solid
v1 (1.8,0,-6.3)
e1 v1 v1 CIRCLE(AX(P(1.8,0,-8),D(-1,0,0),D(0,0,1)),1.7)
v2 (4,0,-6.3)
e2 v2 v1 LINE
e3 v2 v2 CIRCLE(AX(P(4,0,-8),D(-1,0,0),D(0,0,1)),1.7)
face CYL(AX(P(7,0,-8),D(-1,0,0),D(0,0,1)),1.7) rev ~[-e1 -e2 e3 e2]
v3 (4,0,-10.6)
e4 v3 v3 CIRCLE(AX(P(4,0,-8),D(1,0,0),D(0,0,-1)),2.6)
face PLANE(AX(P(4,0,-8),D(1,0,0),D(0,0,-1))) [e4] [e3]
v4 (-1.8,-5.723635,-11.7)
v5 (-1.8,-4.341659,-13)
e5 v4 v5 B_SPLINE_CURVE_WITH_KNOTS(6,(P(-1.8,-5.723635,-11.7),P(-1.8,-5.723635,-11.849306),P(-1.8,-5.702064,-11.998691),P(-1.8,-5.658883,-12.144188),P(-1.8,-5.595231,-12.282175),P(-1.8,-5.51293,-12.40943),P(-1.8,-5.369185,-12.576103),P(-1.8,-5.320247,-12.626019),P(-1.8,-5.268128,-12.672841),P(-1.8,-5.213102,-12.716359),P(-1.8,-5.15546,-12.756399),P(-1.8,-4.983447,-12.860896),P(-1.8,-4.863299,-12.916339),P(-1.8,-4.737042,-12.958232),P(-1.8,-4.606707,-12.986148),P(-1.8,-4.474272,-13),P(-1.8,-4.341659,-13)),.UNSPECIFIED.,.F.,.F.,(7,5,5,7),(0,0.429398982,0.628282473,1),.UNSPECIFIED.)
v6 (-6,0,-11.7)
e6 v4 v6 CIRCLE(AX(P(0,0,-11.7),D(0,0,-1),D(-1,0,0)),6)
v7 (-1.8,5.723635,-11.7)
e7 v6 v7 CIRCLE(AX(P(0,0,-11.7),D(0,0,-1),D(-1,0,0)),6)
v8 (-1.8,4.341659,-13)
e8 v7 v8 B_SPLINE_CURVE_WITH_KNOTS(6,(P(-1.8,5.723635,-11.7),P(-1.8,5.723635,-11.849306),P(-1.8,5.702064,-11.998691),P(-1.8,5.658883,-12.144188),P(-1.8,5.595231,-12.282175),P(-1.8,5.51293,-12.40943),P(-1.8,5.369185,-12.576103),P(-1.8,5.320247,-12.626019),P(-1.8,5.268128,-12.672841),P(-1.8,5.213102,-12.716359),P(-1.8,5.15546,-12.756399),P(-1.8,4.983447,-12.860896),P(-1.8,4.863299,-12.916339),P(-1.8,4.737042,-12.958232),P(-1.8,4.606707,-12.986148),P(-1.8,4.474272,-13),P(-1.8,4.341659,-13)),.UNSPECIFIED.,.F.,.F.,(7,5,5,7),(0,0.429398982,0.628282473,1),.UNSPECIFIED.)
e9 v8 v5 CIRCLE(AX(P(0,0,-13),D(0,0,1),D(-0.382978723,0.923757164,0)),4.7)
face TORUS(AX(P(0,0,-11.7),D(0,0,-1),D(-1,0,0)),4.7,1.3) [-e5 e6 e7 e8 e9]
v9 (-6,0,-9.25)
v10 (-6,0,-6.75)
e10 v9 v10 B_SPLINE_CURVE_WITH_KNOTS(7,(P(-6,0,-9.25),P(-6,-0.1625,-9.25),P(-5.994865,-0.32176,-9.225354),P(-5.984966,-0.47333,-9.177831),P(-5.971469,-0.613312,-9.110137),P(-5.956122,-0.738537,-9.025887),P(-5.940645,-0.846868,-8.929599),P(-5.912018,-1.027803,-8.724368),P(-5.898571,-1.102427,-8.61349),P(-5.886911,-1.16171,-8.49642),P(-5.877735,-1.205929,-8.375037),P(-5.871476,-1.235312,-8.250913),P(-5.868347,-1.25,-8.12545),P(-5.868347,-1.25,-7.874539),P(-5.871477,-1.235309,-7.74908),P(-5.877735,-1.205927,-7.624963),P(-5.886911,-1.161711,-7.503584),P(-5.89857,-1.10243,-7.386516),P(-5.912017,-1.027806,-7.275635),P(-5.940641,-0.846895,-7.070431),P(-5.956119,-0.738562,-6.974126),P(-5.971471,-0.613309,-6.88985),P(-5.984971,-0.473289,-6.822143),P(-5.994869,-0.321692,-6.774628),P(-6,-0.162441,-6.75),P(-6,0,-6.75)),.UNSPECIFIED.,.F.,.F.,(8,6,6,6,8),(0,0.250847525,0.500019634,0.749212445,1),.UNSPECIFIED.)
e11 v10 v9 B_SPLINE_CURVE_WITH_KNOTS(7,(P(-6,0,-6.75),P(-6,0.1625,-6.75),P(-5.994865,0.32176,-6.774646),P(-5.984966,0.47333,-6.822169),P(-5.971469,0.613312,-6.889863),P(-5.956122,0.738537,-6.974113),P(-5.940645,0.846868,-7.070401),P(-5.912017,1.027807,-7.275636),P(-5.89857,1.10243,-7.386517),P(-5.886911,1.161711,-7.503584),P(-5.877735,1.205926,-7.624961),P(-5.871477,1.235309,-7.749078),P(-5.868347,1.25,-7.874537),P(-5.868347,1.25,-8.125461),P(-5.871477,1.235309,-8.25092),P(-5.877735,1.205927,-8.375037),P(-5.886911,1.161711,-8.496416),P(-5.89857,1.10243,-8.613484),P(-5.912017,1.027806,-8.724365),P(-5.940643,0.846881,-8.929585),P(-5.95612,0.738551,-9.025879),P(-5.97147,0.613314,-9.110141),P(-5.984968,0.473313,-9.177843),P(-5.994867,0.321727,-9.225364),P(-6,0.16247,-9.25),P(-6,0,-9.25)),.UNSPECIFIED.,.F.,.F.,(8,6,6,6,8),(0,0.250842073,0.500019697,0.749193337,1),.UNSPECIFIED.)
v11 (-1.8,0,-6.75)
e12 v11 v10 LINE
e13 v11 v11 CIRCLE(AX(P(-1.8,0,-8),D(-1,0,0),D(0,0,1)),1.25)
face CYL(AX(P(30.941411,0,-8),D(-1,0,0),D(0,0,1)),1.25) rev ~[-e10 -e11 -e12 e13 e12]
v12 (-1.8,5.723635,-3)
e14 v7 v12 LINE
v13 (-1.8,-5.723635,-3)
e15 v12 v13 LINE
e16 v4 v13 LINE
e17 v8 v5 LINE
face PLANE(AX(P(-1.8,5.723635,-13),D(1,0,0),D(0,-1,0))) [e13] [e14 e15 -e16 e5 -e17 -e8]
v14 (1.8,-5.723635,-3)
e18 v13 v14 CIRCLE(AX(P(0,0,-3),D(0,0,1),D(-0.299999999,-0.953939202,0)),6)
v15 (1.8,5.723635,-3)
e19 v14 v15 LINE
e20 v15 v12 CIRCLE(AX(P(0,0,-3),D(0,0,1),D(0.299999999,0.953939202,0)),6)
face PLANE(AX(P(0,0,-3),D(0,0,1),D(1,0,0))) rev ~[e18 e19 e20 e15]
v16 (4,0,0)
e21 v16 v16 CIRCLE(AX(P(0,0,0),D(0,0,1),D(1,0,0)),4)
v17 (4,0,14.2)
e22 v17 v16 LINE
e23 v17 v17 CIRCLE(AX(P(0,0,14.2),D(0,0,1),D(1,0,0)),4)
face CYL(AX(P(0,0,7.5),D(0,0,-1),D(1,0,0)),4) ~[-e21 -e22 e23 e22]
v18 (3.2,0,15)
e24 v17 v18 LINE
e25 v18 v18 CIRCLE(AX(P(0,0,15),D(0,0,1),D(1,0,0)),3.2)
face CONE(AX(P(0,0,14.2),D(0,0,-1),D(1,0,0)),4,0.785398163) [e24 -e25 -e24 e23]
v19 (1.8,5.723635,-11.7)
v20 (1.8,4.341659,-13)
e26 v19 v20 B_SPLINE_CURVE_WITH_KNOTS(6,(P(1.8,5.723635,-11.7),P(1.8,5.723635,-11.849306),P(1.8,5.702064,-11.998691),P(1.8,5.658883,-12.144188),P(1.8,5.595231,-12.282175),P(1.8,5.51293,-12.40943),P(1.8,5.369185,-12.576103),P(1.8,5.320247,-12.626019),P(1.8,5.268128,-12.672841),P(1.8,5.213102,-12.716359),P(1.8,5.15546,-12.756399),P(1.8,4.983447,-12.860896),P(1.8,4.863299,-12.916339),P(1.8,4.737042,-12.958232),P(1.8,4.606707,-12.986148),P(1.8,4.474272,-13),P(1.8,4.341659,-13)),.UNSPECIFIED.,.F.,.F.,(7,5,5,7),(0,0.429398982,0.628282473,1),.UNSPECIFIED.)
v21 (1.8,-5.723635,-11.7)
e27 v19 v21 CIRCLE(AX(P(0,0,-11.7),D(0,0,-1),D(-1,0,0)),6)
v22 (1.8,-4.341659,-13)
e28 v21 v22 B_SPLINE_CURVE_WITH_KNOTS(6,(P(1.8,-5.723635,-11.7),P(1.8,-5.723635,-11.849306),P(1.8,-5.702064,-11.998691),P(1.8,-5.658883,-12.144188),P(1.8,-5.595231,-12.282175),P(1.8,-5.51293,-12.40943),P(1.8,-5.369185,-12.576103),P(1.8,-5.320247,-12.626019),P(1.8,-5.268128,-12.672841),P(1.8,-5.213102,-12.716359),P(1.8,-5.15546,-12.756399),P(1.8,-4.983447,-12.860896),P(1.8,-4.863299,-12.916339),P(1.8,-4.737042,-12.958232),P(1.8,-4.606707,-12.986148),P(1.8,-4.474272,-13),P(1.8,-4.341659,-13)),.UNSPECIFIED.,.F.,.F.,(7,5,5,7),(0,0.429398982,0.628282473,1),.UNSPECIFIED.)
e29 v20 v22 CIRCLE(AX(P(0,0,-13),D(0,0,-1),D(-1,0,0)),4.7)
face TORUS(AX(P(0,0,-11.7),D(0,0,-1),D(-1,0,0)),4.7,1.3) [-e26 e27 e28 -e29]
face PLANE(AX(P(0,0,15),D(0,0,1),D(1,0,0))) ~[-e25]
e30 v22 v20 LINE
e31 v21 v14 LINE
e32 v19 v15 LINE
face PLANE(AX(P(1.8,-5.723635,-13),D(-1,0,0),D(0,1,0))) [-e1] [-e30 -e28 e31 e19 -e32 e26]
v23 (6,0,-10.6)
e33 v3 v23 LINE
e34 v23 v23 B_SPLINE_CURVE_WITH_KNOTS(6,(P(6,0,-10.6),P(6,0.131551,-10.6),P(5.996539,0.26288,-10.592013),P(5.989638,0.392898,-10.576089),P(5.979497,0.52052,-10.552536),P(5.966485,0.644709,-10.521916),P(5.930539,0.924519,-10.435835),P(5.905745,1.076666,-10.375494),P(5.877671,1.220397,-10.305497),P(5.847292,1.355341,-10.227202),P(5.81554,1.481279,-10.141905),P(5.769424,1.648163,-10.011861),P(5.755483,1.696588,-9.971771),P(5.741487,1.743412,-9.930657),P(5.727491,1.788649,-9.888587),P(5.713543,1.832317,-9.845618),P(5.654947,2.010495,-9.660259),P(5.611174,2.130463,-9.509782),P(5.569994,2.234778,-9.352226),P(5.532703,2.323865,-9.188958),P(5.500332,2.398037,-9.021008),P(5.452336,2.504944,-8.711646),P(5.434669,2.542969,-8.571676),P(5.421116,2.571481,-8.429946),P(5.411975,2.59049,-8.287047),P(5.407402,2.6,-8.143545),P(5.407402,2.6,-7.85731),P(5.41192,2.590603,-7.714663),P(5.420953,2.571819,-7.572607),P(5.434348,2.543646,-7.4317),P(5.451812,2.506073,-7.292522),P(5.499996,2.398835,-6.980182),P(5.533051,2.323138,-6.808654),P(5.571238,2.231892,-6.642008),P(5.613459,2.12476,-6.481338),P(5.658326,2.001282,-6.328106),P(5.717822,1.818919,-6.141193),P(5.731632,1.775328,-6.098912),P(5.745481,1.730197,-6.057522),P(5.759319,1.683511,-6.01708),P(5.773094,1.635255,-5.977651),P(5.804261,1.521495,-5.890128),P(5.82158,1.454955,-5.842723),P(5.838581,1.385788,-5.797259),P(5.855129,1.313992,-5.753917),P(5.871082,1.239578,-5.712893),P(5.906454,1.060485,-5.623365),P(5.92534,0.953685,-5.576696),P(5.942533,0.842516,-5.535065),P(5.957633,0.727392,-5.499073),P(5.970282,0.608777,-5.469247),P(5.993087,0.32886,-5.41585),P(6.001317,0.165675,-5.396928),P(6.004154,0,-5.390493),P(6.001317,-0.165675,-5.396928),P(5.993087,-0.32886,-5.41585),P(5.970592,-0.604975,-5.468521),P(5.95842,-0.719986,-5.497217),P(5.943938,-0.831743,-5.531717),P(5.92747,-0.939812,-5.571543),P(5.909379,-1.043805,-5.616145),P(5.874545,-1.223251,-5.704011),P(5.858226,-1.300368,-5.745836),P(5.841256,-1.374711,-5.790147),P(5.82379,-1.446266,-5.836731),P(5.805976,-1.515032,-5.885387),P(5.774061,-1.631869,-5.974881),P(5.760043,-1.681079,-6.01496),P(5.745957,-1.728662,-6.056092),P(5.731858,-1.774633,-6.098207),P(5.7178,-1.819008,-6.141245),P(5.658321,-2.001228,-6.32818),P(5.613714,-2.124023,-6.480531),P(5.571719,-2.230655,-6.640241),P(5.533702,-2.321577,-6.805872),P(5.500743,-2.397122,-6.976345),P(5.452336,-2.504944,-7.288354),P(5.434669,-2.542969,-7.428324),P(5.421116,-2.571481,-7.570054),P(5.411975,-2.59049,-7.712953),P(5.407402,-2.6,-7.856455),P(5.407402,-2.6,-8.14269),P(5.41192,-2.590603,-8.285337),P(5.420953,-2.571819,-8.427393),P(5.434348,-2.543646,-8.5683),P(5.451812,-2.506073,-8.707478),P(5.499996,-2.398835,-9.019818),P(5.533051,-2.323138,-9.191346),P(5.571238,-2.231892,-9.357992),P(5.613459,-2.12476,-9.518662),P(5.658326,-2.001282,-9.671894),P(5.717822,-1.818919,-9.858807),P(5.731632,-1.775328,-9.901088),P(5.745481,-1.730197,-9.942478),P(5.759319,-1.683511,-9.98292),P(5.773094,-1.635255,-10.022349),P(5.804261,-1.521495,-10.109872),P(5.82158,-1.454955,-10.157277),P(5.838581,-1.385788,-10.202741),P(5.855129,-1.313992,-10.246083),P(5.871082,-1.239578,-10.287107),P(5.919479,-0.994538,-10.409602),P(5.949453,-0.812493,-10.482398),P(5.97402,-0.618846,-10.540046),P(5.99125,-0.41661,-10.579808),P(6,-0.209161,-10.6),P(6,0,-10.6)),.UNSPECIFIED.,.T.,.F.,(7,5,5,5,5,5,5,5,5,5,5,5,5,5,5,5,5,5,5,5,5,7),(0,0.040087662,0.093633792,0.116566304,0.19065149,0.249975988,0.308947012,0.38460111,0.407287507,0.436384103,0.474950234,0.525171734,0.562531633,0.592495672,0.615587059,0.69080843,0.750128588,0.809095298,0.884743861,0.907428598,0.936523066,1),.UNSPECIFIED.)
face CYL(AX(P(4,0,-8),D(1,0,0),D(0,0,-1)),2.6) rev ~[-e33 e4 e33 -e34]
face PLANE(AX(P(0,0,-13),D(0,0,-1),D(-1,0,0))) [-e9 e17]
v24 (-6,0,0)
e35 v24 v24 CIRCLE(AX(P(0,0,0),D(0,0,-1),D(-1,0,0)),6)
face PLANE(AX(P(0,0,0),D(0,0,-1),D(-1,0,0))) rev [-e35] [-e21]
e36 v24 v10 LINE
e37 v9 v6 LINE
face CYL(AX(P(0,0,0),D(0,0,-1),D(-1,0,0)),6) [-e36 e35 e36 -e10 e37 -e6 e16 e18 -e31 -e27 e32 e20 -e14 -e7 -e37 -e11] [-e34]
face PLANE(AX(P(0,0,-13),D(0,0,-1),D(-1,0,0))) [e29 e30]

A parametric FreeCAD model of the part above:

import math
import FreeCAD as App
import Part
import Sketcher
Q = App.Units.Quantity


def edges_at(feature, points):
    """Names of the edges that pass closest to the given points."""
    edges = feature.Shape.Edges
    near = lambda p: min(range(len(edges)), key=lambda i: edges[i].distToShape(Part.Vertex(*p))[0])
    return sorted({f"Edge{near(p) + 1}" for p in points})


def add_polygon(sketch, points):
    """Adds a closed chain of lines whose ends are joined by coincident constraints."""
    first, n = sketch.GeometryCount, len(points)
    for a, b in zip(points, points[1:] + points[:1]):
        sketch.addGeometry(Part.LineSegment(App.Vector(*a, 0), App.Vector(*b, 0)), False)
    for i in range(n):
        sketch.addConstraint(Sketcher.Constraint("Coincident", first + i, 2, first + (i + 1) % n, 1))

doc = App.newDocument("Part")
body = doc.addObject("PartDesign::Body", "Body")

sketch1 = body.newObject("Sketcher::SketchObject", "Sketch")
sketch1.AttachmentSupport = (doc.getObject("XZ_Plane"), [""])
sketch1.MapMode = "FlatFace"
sketch1.addGeometry([
    Part.LineSegment(App.Vector(0, 0, 0), App.Vector(6, 0, 0)),
    Part.LineSegment(App.Vector(6, 0, 0), App.Vector(6, -11.7, 0)),
    Part.ArcOfCircle(Part.Circle(App.Vector(4.7, -11.7, 0), App.Vector(0, 0, 1), 1.3), math.radians(-90), math.radians(0)),
    Part.LineSegment(App.Vector(4.7, -13, 0), App.Vector(0, -13, 0)),
    Part.LineSegment(App.Vector(0, -13, 0), App.Vector(0, 0, 0)),
], False)
sketch1.addConstraint([
    Sketcher.Constraint("Coincident", 0, 2, 1, 1),
    Sketcher.Constraint("Tangent", 1, 2, 2, 2),
    Sketcher.Constraint("Tangent", 2, 1, 3, 1),
    Sketcher.Constraint("Coincident", 3, 2, 4, 1),
    Sketcher.Constraint("Coincident", 4, 2, 0, 1),
    Sketcher.Constraint("Horizontal", 0),
    Sketcher.Constraint("Vertical", 1),
    Sketcher.Constraint("Horizontal", 3),
    Sketcher.Constraint("Vertical", 4),
    Sketcher.Constraint("Coincident", 4, 2, -1, 1),
    Sketcher.Constraint("Radius", 2, Q("1.3 mm")),
    Sketcher.Constraint("DistanceX", 0, 1, 0, 2, Q("6 mm")),
    Sketcher.Constraint("DistanceY", 4, 1, 4, 2, Q("13 mm")),
])
revolution = body.newObject("PartDesign::Revolution", "Revolution")
revolution.Profile = sketch1
revolution.ReferenceAxis = (sketch1, ["V_Axis"])
revolution.Angle = 360

sketch2 = body.newObject("Sketcher::SketchObject", "Sketch001")
sketch2.AttachmentSupport = (doc.getObject("XZ_Plane"), [""])
sketch2.MapMode = "FlatFace"
add_polygon(sketch2, [(0, 0), (0, 15), (4, 15), (4, 0)])
sketch2.addConstraint([
    Sketcher.Constraint("Vertical", 0),
    Sketcher.Constraint("Horizontal", 1),
    Sketcher.Constraint("Vertical", 2),
    Sketcher.Constraint("Horizontal", 3),
    Sketcher.Constraint("Coincident", 3, 2, -1, 1),
    Sketcher.Constraint("DistanceX", 1, 1, 1, 2, Q("4 mm")),
    Sketcher.Constraint("DistanceY", 0, 1, 0, 2, Q("15 mm")),
])
revolution2 = body.newObject("PartDesign::Revolution", "Revolution001")
revolution2.Profile = sketch2
revolution2.ReferenceAxis = (sketch2, ["V_Axis"])
revolution2.Angle = 360
doc.recompute()

chamfer = body.newObject("PartDesign::Chamfer", "Chamfer")
chamfer.Base = (revolution2, edges_at(revolution2, [(-4, 0, 15)]))
chamfer.Size = 0.8

sketch3 = body.newObject("Sketcher::SketchObject", "Sketch002")
sketch3.AttachmentSupport = (doc.getObject("XY_Plane"), [""])
sketch3.MapMode = "FlatFace"
sketch3.AttachmentOffset = App.Placement(App.Vector(0, 0, -13), App.Rotation())
sketch3.addGeometry([
    Part.LineSegment(App.Vector(1.8, -5.7, 0), App.Vector(1.8, 5.7, 0)),
    Part.ArcOfCircle(Part.Circle(App.Vector(0, 0, 0), App.Vector(0, 0, 1), 6), math.radians(73), math.radians(107)),
    Part.LineSegment(App.Vector(-1.8, 5.7, 0), App.Vector(-1.8, -5.7, 0)),
    Part.ArcOfCircle(Part.Circle(App.Vector(0, 0, 0), App.Vector(0, 0, 1), 6), math.radians(-107), math.radians(-73)),
], False)
sketch3.addConstraint([
    Sketcher.Constraint("Coincident", 0, 2, 1, 1),
    Sketcher.Constraint("Coincident", 1, 2, 2, 1),
    Sketcher.Constraint("Coincident", 2, 2, 3, 1),
    Sketcher.Constraint("Coincident", 3, 2, 0, 1),
    Sketcher.Constraint("Vertical", 0),
    Sketcher.Constraint("Vertical", 2),
    Sketcher.Constraint("Coincident", 1, 3, -1, 1),
    Sketcher.Constraint("Coincident", 3, 3, -1, 1),
    Sketcher.Constraint("Equal", 1, 3),
    Sketcher.Constraint("Horizontal", 0, 2, 1, 2),
    Sketcher.Constraint("Radius", 1, Q("6 mm")),
    Sketcher.Constraint("DistanceX", -1, 1, 0, 2, Q("1.8 mm")),
])
pocket1 = body.newObject("PartDesign::Pocket", "Pocket")
pocket1.Profile = sketch3
pocket1.Length = 10
pocket1.Reversed = True

sketch4 = body.newObject("Sketcher::SketchObject", "Sketch003")
sketch4.AttachmentSupport = (doc.getObject("YZ_Plane"), [""])
sketch4.MapMode = "FlatFace"
sketch4.AttachmentOffset = App.Placement(App.Vector(0, 0, 7), App.Rotation())
sketch4.addGeometry(Part.Circle(App.Vector(0, -8, 0), App.Vector(0, 0, 1), 1.7), False)
sketch4.addConstraint([
    Sketcher.Constraint("PointOnObject", 0, 3, -2),
    Sketcher.Constraint("Diameter", 0, Q("3.4 mm")),
    Sketcher.Constraint("DistanceY", 0, 3, -1, 1, Q("8 mm")),
])
doc.recompute()
hole = body.newObject("PartDesign::Hole", "Hole")
hole.Profile = sketch4
hole.ThreadType = "None"
hole.Diameter = 3.4
hole.DepthType = "Dimension"
hole.Depth = 8
hole.DrillPoint = "Angled"
hole.DrillPointAngle = 118
hole.HoleCutType = "Counterbore"
hole.HoleCutDiameter = 5.2
hole.HoleCutDepth = 3

sketch5 = body.newObject("Sketcher::SketchObject", "Sketch004")
sketch5.AttachmentSupport = (doc.getObject("YZ_Plane"), [""])
sketch5.MapMode = "FlatFace"
sketch5.AttachmentOffset = App.Placement(App.Vector(0, 0, -1.8), App.Rotation())
sketch5.addGeometry(Part.Circle(App.Vector(0, -8, 0), App.Vector(0, 0, 1), 1.2), False)
sketch5.addConstraint([
    Sketcher.Constraint("PointOnObject", 0, 3, -2),
    Sketcher.Constraint("Diameter", 0, Q("2.5 mm")),
    Sketcher.Constraint("DistanceY", 0, 3, -1, 1, Q("8 mm")),
])
doc.recompute()
hole2 = body.newObject("PartDesign::Hole", "Hole001")
hole2.Profile = sketch5
hole2.ThreadType = "None"
hole2.Diameter = 2.5
hole2.DepthType = "ThroughAll"

doc.recompute()
